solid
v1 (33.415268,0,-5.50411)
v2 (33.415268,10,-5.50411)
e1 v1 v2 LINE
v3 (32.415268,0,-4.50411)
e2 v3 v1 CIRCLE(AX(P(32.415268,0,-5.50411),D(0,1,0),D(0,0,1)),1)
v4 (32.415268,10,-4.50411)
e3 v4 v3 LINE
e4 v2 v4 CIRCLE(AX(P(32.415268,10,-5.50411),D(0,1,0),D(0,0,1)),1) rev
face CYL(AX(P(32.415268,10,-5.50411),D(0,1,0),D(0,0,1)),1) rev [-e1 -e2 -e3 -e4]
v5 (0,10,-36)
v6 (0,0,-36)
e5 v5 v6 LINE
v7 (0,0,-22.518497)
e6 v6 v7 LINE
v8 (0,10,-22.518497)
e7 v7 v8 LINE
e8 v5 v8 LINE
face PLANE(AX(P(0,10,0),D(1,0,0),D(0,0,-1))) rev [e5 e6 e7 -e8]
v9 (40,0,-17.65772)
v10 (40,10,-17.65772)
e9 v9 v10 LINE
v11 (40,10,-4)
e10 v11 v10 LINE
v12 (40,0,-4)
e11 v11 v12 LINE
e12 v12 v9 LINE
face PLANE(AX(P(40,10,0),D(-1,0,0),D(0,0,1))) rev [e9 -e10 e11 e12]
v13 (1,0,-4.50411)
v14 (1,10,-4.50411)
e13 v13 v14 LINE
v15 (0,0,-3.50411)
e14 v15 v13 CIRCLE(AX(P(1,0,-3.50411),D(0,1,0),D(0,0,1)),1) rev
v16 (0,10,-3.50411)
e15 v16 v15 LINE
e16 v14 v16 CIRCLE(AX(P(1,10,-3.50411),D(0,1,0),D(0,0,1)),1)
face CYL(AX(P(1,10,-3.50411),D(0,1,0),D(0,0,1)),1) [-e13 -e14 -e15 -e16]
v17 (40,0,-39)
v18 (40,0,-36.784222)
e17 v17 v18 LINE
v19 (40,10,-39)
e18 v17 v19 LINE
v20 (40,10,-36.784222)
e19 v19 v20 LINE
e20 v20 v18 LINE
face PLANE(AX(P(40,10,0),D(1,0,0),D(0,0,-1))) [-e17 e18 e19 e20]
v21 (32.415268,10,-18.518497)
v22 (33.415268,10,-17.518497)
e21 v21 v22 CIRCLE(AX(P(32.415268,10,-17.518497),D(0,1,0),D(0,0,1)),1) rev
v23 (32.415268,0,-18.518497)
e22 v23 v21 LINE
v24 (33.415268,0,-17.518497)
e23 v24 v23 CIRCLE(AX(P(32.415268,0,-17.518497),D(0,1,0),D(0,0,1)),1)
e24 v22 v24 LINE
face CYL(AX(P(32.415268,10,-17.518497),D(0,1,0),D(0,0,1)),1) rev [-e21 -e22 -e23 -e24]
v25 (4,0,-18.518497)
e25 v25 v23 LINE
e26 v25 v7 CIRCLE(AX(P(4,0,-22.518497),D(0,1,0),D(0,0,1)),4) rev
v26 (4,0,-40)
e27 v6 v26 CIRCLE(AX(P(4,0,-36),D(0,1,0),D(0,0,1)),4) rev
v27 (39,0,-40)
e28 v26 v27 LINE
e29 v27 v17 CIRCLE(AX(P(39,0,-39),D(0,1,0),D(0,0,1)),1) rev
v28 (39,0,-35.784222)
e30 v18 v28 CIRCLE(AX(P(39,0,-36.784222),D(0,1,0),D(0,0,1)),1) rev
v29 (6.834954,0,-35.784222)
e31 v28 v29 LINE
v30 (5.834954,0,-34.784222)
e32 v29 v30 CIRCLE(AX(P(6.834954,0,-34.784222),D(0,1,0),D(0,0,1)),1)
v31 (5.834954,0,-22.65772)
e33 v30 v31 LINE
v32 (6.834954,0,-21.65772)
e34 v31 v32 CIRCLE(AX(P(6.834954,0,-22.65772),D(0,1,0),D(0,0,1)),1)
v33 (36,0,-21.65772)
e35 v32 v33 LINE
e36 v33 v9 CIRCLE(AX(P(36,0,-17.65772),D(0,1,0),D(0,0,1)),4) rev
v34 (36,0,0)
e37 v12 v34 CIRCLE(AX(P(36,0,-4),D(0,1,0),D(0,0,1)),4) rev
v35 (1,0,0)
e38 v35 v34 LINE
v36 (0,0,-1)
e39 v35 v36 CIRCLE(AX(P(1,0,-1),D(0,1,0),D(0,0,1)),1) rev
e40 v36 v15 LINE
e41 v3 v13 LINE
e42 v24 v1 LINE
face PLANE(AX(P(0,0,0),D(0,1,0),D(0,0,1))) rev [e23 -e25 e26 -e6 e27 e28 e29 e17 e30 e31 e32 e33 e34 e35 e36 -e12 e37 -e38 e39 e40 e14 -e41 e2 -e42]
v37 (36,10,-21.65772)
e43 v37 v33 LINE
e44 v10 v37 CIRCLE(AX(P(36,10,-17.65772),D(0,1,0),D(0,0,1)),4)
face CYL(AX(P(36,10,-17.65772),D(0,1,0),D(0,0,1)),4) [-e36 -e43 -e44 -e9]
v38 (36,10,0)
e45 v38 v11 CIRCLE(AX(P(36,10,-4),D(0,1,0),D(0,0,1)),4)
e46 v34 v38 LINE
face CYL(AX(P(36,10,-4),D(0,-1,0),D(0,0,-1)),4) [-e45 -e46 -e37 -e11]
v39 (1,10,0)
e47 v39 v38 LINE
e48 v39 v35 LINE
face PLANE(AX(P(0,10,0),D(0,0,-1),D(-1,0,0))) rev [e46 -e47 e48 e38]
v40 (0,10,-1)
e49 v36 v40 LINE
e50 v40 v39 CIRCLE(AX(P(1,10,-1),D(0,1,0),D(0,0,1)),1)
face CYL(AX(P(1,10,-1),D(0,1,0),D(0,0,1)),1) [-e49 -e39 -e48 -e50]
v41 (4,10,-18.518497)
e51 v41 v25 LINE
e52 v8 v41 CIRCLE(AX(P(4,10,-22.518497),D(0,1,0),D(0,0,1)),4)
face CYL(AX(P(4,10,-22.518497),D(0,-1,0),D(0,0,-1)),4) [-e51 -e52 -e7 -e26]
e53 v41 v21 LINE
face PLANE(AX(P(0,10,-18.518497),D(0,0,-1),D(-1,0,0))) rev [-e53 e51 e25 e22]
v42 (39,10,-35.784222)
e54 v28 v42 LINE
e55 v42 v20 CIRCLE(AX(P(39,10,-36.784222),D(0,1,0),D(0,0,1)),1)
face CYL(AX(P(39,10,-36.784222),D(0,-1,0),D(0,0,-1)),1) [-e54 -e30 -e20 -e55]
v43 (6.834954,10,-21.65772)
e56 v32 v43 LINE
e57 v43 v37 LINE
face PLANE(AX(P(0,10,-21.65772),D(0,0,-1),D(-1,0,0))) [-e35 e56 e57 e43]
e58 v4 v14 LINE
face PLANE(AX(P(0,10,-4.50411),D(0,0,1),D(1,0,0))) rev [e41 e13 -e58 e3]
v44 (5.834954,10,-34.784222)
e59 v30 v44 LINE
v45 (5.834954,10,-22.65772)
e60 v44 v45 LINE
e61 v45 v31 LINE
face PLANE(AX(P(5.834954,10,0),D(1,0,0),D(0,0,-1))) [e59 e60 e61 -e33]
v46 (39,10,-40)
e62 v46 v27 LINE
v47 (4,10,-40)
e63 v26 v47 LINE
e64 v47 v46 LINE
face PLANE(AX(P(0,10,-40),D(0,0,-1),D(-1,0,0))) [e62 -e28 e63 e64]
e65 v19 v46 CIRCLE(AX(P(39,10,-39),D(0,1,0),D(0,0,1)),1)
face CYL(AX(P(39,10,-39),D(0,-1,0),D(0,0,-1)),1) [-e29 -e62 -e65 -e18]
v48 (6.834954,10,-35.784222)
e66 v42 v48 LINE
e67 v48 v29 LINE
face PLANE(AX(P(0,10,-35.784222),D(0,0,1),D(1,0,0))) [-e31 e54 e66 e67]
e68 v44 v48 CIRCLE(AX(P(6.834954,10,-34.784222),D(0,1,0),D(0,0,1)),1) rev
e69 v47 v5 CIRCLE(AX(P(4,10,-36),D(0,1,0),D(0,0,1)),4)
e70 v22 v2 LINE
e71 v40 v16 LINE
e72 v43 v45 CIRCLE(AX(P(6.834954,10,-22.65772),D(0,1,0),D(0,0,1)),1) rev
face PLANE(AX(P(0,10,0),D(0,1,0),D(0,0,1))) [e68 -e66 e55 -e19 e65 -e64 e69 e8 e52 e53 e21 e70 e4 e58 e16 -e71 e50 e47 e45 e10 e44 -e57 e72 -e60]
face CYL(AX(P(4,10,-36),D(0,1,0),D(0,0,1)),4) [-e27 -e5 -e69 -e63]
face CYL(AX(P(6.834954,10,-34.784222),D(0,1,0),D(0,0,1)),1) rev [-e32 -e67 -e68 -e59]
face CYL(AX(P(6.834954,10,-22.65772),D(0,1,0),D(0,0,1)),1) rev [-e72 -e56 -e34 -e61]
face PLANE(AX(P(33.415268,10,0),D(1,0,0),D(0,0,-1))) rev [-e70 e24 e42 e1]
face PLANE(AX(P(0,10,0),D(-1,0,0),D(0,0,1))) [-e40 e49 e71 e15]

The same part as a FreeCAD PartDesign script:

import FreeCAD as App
import Part
import Sketcher
Q = App.Units.Quantity


def edges_at(feature, points):
    """Names of the edges that pass closest to the given points."""
    edges = feature.Shape.Edges
    near = lambda p: min(range(len(edges)), key=lambda i: edges[i].distToShape(Part.Vertex(*p))[0])
    return sorted({f"Edge{near(p) + 1}" for p in points})


def add_polygon(sketch, points):
    """Adds a closed chain of lines whose ends are joined by coincident constraints."""
    first, n = sketch.GeometryCount, len(points)
    for a, b in zip(points, points[1:] + points[:1]):
        sketch.addGeometry(Part.LineSegment(App.Vector(*a, 0), App.Vector(*b, 0)), False)
    for i in range(n):
        sketch.addConstraint(Sketcher.Constraint("Coincident", first + i, 2, first + (i + 1) % n, 1))

doc = App.newDocument("Part")
params = doc.addObject("Spreadsheet::Sheet", "Params")
for row, (alias, value) in enumerate([
    ("sketch1_width", "40 mm"),
    ("pad1_length", "10 mm"),
    ("fillet_radius", "4 mm"),
    ("fillet2_radius", "1 mm"),
], start=1):
    params.set(f"A{row}", alias)
    params.set(f"B{row}", "=" + value)
    params.setAlias(f"B{row}", alias)

body = doc.addObject("PartDesign::Body", "Body")

sketch1 = doc.addObject("Sketcher::SketchObject", "Sketch")
body.addObject(sketch1)
sketch1.AttachmentSupport = (doc.XZ_Plane, [""])
sketch1.MapMode = "FlatFace"
add_polygon(sketch1, [(0, -4.5), (0, 0), (40, 0), (40, -21.7), (5.8, -21.7), (5.8, -35.8), (40, -35.8), (40, -40), (0, -40), (0, -18.5), (33.4, -18.5), (33.4, -4.5)])
sketch1.addConstraint(Sketcher.Constraint("Vertical", 0))
sketch1.addConstraint(Sketcher.Constraint("Horizontal", 1))
sketch1.addConstraint(Sketcher.Constraint("Vertical", 2))
sketch1.addConstraint(Sketcher.Constraint("Horizontal", 3))
sketch1.addConstraint(Sketcher.Constraint("Vertical", 4))
sketch1.addConstraint(Sketcher.Constraint("Horizontal", 5))
sketch1.addConstraint(Sketcher.Constraint("Vertical", 6))
sketch1.addConstraint(Sketcher.Constraint("Horizontal", 7))
sketch1.addConstraint(Sketcher.Constraint("Vertical", 8))
sketch1.addConstraint(Sketcher.Constraint("Horizontal", 9))
sketch1.addConstraint(Sketcher.Constraint("Vertical", 10))
sketch1.addConstraint(Sketcher.Constraint("Horizontal", 11))
sketch1.addConstraint(Sketcher.Constraint("Coincident", 0, 2, -1, 1))
sketch1.addConstraint(Sketcher.Constraint("PointOnObject", 7, 2, -2))
sketch1.addConstraint(Sketcher.Constraint("Vertical", 2, 2, 5, 2))
sketch1.addConstraint(Sketcher.Constraint("DistanceX", 1, 1, 1, 2, Q("40 mm")))
sketch1.addConstraint(Sketcher.Constraint("DistanceY", 6, 2, -1, 1, Q("40 mm")))
sketch1.addConstraint(Sketcher.Constraint("DistanceX", 9, 1, 9, 2, Q("33.415268 mm")))
sketch1.addConstraint(Sketcher.Constraint("DistanceY", 0, 1, 0, 2, Q("4.50411 mm")))
sketch1.addConstraint(Sketcher.Constraint("DistanceY", 2, 2, 2, 1, Q("21.65772 mm")))
sketch1.addConstraint(Sketcher.Constraint("DistanceX", 3, 2, 3, 1, Q("34.165046 mm")))
sketch1.addConstraint(Sketcher.Constraint("DistanceY", 4, 2, 4, 1, Q("14.126502 mm")))
sketch1.addConstraint(Sketcher.Constraint("DistanceY", 8, 1, 8, 2, Q("21.481503 mm")))
sketch1.setExpression("Constraints[27]", "Params.sketch1_width")
pad1 = doc.addObject("PartDesign::Pad", "Pad")
body.addObject(pad1)
pad1.Profile = sketch1
pad1.setExpression("Length", "Params.pad1_length")
pad1.Reversed = True
doc.recompute()

fillet = doc.addObject("PartDesign::Fillet", "Fillet")
body.addObject(fillet)
fillet.Base = (pad1, edges_at(pad1, [
    (0, 5, -18.518),
    (0, 5, -40),
    (40, 5, -21.658),
    (40, 5, 0),
]))
fillet.setExpression("Radius", "Params.fillet_radius")
doc.recompute()

fillet2 = doc.addObject("PartDesign::Fillet", "Fillet001")
body.addObject(fillet2)
fillet2.Base = (fillet, edges_at(fillet, [
    (33.415, 5, -18.518),
    (40, 5, -40),
    (40, 5, -35.784),
    (5.835, 5, -35.784),
    (5.835, 5, -21.658),
    (0, 5, 0),
    (0, 5, -4.504),
    (33.415, 5, -4.504),
]))
fillet2.setExpression("Radius", "Params.fillet2_radius")

doc.recompute()
